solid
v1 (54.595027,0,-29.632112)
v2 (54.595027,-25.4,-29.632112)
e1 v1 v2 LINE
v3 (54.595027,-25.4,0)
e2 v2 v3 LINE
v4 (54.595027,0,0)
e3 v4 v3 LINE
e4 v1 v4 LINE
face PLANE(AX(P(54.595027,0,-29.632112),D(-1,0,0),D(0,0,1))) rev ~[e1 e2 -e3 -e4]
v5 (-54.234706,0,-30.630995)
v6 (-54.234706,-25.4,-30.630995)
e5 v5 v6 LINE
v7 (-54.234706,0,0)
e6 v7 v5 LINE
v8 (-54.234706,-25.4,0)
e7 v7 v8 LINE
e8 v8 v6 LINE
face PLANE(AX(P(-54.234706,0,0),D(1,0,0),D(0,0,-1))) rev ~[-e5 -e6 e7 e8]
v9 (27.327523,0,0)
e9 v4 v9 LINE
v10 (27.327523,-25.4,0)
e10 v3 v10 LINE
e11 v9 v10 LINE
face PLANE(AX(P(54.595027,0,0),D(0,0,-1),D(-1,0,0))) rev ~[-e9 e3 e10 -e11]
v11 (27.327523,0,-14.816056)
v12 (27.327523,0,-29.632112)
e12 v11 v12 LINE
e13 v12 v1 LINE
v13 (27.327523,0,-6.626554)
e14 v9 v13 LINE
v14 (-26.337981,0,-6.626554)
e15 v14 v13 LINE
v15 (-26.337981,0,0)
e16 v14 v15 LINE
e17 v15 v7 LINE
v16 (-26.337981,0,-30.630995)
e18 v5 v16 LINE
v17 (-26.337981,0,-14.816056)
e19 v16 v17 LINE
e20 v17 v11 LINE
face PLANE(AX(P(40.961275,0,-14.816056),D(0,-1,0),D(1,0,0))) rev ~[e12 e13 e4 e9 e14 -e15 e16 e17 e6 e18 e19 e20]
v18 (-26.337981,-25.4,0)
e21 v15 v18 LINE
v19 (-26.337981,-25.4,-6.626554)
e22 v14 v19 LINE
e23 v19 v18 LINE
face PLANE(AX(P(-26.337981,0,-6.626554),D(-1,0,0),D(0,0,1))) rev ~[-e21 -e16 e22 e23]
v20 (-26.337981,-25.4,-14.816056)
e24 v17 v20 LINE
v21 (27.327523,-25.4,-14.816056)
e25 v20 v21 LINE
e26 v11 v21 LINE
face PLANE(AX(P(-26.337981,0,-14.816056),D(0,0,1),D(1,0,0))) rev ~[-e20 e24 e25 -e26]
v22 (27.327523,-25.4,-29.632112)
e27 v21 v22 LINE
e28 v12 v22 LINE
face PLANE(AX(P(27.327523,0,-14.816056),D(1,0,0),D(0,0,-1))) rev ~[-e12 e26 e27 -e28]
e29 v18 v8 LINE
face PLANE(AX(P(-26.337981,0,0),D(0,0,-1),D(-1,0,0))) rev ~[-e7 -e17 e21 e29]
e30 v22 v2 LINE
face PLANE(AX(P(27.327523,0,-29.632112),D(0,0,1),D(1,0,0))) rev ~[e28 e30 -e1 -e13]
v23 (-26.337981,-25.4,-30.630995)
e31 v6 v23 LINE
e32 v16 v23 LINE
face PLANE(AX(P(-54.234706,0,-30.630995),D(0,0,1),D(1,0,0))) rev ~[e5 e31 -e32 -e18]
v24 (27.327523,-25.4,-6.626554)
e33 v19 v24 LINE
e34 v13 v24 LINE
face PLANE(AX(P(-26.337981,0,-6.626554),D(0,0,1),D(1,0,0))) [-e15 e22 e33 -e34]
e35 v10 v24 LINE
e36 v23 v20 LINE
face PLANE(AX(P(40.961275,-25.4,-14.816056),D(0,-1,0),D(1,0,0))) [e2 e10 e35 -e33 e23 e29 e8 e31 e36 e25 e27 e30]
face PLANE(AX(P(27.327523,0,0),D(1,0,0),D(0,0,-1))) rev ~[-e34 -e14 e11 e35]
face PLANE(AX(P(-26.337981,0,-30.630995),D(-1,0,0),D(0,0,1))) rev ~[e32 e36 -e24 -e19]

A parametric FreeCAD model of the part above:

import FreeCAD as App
import Part
import Sketcher
from FreeCAD import Vector
Q = App.Units.Quantity


def add_polygon(sketch, points):
    """Adds a closed chain of lines whose ends are joined by coincident constraints."""
    first, n = sketch.GeometryCount, len(points)
    for a, b in zip(points, points[1:] + points[:1]):
        sketch.addGeometry(Part.LineSegment(App.Vector(*a, 0), App.Vector(*b, 0)), False)
    for i in range(n):
        sketch.addConstraint(Sketcher.Constraint("Coincident", first + i, 2, first + (i + 1) % n, 1))

doc = App.newDocument("Part")
body = doc.addObject("PartDesign::Body", "Body")

# Sketch on XZ plane
sketch1 = doc.addObject("Sketcher::SketchObject", "Sketch")
body.addObject(sketch1)
sketch1.AttachmentSupport = (doc.XZ_Plane, [""])
sketch1.MapMode = "FlatFace"
add_polygon(sketch1, [(27, -30), (55, -30), (55, 0), (27, 0), (27, -7), (-26, -7), (-26, 0), (-54, 0), (-54, -31), (-26, -31), (-26, -15), (27, -15)])  # lines 0-11
sketch1.addConstraint([
    Sketcher.Constraint("Horizontal", 0),
    Sketcher.Constraint("Vertical", 1),
    Sketcher.Constraint("Horizontal", 2),
    Sketcher.Constraint("Vertical", 3),
    Sketcher.Constraint("Horizontal", 4),
    Sketcher.Constraint("Vertical", 5),
    Sketcher.Constraint("Horizontal", 6),
    Sketcher.Constraint("Vertical", 7),
    Sketcher.Constraint("Horizontal", 8),
    Sketcher.Constraint("Vertical", 9),
    Sketcher.Constraint("Horizontal", 10),
    Sketcher.Constraint("Vertical", 11),
    Sketcher.Constraint("PointOnObject", 1, 2, -1),
    Sketcher.Constraint("PointOnObject", 5, 2, -1),
    Sketcher.Constraint("Vertical", 5, 2, 8, 2),
    Sketcher.Constraint("Vertical", 3, 2, 10, 2),
    Sketcher.Constraint("DistanceY", 1, 1, 1, 2, Q("29.632112 mm")),
    Sketcher.Constraint("DistanceY", 9, 1, 9, 2, Q("15.814939 mm")),
    Sketcher.Constraint("DistanceX", 0, 1, 0, 2, Q("27.267504 mm")),
    Sketcher.Constraint("DistanceX", 4, 2, 4, 1, Q("53.665504 mm")),
    Sketcher.Constraint("DistanceX", 6, 2, 6, 1, Q("27.896725 mm")),
    Sketcher.Constraint("DistanceY", 3, 2, 3, 1, Q("6.626554 mm")),
    Sketcher.Constraint("DistanceY", 7, 2, 7, 1, Q("30.630995 mm")),
    Sketcher.Constraint("DistanceX", 4, 2, -1, 1, Q("26.337981 mm")),
])
pad1 = doc.addObject("PartDesign::Pad", "Pad")
body.addObject(pad1)
pad1.Profile = sketch1
pad1.Length = Q("1 in")

doc.recompute()
